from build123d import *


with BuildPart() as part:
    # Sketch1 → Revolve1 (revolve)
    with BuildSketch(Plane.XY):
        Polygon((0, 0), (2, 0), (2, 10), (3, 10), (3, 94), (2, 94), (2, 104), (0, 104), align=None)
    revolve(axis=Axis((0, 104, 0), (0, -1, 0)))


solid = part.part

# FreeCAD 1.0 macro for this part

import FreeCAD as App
import Part
import Sketcher

V = App.Vector
Q = App.Units.Quantity


def add_polygon(sketch, points):
    """Adds a closed chain of lines whose ends are joined by coincident constraints."""
    first, n = sketch.GeometryCount, len(points)
    for a, b in zip(points, points[1:] + points[:1]):
        sketch.addGeometry(Part.LineSegment(App.Vector(*a, 0), App.Vector(*b, 0)), False)
    for i in range(n):
        sketch.addConstraint(Sketcher.Constraint("Coincident", first + i, 2, first + (i + 1) % n, 1))

doc = App.newDocument("Part")
body = doc.addObject("PartDesign::Body", "Body")

# Sketch on XY plane
sketch1 = body.newObject("Sketcher::SketchObject", "Sketch")
sketch1.AttachmentSupport = (doc.getObject("XY_Plane"), [""])
sketch1.MapMode = "FlatFace"
add_polygon(sketch1, [(0, 0), (2, 0), (2, 10), (3, 10), (3, 94), (2, 94), (2, 104), (0, 104)])  # lines 0-7
sketch1.addConstraint(Sketcher.Constraint("Horizontal", 0))
sketch1.addConstraint(Sketcher.Constraint("Vertical", 1))
sketch1.addConstraint(Sketcher.Constraint("Horizontal", 2))
sketch1.addConstraint(Sketcher.Constraint("Vertical", 3))
sketch1.addConstraint(Sketcher.Constraint("Horizontal", 4))
sketch1.addConstraint(Sketcher.Constraint("Vertical", 5))
sketch1.addConstraint(Sketcher.Constraint("Horizontal", 6))
sketch1.addConstraint(Sketcher.Constraint("Vertical", 7))
sketch1.addConstraint(Sketcher.Constraint("Coincident", 7, 2, -1, 1))
sketch1.addConstraint(Sketcher.Constraint("Vertical", 1, 2, 4, 2))
sketch1.addConstraint(Sketcher.Constraint("Equal", 1, 5))
sketch1.addConstraint(Sketcher.Constraint("DistanceX", 0, 1, 0, 2, Q("2 mm")))
sketch1.addConstraint(Sketcher.Constraint("DistanceX", 2, 1, 2, 2, Q("1 mm")))
sketch1.addConstraint(Sketcher.Constraint("DistanceY", 1, 1, 1, 2, Q("10 mm")))
sketch1.addConstraint(Sketcher.Constraint("DistanceY", 3, 1, 3, 2, Q("84 mm")))
revolution = body.newObject("PartDesign::Revolution", "Revolution")
revolution.Profile = sketch1
revolution.ReferenceAxis = (sketch1, ["V_Axis"])
revolution.Angle = 360

doc.recompute()
